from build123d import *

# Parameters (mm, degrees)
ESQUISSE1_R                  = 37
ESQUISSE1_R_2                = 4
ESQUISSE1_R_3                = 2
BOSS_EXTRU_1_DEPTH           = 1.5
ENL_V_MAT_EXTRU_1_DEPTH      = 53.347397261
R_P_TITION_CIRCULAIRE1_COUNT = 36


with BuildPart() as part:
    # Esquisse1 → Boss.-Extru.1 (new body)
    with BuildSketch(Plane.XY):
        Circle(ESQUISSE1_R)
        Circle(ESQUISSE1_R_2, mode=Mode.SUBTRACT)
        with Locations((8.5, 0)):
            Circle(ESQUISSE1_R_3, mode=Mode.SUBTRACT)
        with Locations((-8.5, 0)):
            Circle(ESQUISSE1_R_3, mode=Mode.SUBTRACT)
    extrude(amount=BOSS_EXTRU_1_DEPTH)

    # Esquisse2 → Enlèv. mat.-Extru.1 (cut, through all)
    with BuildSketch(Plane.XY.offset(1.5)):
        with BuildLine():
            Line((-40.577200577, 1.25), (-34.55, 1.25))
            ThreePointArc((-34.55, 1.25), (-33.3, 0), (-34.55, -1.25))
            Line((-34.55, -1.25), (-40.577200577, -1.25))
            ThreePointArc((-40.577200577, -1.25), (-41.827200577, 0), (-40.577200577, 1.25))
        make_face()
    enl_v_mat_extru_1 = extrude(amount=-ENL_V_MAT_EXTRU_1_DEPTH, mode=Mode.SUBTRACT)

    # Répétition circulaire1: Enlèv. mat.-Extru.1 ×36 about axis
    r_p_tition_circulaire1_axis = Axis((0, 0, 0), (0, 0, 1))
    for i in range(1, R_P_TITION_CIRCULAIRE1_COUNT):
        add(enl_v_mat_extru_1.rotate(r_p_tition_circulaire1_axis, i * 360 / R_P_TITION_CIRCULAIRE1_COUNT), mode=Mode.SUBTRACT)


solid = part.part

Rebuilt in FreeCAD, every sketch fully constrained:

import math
import FreeCAD as App
import Part
import Sketcher

V = App.Vector

doc = App.newDocument("Part")
body = doc.addObject("PartDesign::Body", "Body")

sketch1 = doc.addObject("Sketcher::SketchObject", "Sketch")
body.addObject(sketch1)
sketch1.AttachmentSupport = (doc.XY_Plane, [""])
sketch1.MapMode = "FlatFace"
sketch1.addGeometry([
    Part.Circle(V(0, 0, 0), V(0, 0, 1), 37),
    Part.Circle(V(-8.5, 0, 0), V(0, 0, 1), 2),
    Part.Circle(V(0, 0, 0), V(0, 0, 1), 4),
    Part.Circle(V(8.5, 0, 0), V(0, 0, 1), 2),
], False)
sketch1.addConstraint([
    Sketcher.Constraint("Coincident", 0, 3, -1, 1),
    Sketcher.Constraint("Coincident", 2, 3, -1, 1),
    Sketcher.Constraint("Equal", 1, 3),
    Sketcher.Constraint("Symmetric", 1, 3, 3, 3, -1, 1),
    Sketcher.Constraint("PointOnObject", 1, 3, -1),
    Sketcher.Constraint("Diameter", 0, 74.0),
    Sketcher.Constraint("Diameter", 1, 4.0),
    Sketcher.Constraint("Diameter", 2, 8.0),
    Sketcher.Constraint("DistanceX", 1, 3, 3, 3, 17.0),
])
pad1 = doc.addObject("PartDesign::Pad", "Pad")
body.addObject(pad1)
pad1.Profile = sketch1
pad1.Length = 1.5

sketch2 = doc.addObject("Sketcher::SketchObject", "Sketch001")
body.addObject(sketch2)
sketch2.AttachmentSupport = (doc.XY_Plane, [""])
sketch2.MapMode = "FlatFace"
sketch2.AttachmentOffset = App.Placement(V(0, 0, 1.5), App.Rotation())
sketch2.addGeometry([
    Part.LineSegment(V(-34.5, 1.2, 0), V(-40.6, 1.2, 0)),
    Part.ArcOfCircle(Part.Circle(V(-40.6, 0, 0), V(0, 0, 1), 1.2), math.radians(90), math.radians(270)),
    Part.LineSegment(V(-40.6, -1.2, 0), V(-34.5, -1.2, 0)),
    Part.ArcOfCircle(Part.Circle(V(-34.5, 0, 0), V(0, 0, 1), 1.2), math.radians(-90), math.radians(90)),
], False)
sketch2.addConstraint([
    Sketcher.Constraint("Tangent", 0, 2, 1, 1),
    Sketcher.Constraint("Tangent", 1, 2, 2, 1),
    Sketcher.Constraint("Tangent", 2, 2, 3, 1),
    Sketcher.Constraint("Tangent", 3, 2, 0, 1),
    Sketcher.Constraint("Horizontal", 0),
    Sketcher.Constraint("Horizontal", 2),
    Sketcher.Constraint("PointOnObject", 1, 3, -1),
    Sketcher.Constraint("Radius", 1, 1.25),
    Sketcher.Constraint("DistanceX", 3, 3, -1, 1, 34.55),
    Sketcher.Constraint("DistanceX", 0, 2, 0, 1, 6.027201),
])
pocket1 = doc.addObject("PartDesign::Pocket", "Pocket")
body.addObject(pocket1)
pocket1.Profile = sketch2
pocket1.Type = "ThroughAll"
doc.recompute()

polarpattern = doc.addObject("PartDesign::PolarPattern", "PolarPattern")
body.addObject(polarpattern)
polarpattern.Originals = [pocket1]
polarpattern.Axis = (doc.Z_Axis, [""])
polarpattern.Angle = 360
polarpattern.Occurrences = 36
body.Tip = polarpattern

doc.recompute()
